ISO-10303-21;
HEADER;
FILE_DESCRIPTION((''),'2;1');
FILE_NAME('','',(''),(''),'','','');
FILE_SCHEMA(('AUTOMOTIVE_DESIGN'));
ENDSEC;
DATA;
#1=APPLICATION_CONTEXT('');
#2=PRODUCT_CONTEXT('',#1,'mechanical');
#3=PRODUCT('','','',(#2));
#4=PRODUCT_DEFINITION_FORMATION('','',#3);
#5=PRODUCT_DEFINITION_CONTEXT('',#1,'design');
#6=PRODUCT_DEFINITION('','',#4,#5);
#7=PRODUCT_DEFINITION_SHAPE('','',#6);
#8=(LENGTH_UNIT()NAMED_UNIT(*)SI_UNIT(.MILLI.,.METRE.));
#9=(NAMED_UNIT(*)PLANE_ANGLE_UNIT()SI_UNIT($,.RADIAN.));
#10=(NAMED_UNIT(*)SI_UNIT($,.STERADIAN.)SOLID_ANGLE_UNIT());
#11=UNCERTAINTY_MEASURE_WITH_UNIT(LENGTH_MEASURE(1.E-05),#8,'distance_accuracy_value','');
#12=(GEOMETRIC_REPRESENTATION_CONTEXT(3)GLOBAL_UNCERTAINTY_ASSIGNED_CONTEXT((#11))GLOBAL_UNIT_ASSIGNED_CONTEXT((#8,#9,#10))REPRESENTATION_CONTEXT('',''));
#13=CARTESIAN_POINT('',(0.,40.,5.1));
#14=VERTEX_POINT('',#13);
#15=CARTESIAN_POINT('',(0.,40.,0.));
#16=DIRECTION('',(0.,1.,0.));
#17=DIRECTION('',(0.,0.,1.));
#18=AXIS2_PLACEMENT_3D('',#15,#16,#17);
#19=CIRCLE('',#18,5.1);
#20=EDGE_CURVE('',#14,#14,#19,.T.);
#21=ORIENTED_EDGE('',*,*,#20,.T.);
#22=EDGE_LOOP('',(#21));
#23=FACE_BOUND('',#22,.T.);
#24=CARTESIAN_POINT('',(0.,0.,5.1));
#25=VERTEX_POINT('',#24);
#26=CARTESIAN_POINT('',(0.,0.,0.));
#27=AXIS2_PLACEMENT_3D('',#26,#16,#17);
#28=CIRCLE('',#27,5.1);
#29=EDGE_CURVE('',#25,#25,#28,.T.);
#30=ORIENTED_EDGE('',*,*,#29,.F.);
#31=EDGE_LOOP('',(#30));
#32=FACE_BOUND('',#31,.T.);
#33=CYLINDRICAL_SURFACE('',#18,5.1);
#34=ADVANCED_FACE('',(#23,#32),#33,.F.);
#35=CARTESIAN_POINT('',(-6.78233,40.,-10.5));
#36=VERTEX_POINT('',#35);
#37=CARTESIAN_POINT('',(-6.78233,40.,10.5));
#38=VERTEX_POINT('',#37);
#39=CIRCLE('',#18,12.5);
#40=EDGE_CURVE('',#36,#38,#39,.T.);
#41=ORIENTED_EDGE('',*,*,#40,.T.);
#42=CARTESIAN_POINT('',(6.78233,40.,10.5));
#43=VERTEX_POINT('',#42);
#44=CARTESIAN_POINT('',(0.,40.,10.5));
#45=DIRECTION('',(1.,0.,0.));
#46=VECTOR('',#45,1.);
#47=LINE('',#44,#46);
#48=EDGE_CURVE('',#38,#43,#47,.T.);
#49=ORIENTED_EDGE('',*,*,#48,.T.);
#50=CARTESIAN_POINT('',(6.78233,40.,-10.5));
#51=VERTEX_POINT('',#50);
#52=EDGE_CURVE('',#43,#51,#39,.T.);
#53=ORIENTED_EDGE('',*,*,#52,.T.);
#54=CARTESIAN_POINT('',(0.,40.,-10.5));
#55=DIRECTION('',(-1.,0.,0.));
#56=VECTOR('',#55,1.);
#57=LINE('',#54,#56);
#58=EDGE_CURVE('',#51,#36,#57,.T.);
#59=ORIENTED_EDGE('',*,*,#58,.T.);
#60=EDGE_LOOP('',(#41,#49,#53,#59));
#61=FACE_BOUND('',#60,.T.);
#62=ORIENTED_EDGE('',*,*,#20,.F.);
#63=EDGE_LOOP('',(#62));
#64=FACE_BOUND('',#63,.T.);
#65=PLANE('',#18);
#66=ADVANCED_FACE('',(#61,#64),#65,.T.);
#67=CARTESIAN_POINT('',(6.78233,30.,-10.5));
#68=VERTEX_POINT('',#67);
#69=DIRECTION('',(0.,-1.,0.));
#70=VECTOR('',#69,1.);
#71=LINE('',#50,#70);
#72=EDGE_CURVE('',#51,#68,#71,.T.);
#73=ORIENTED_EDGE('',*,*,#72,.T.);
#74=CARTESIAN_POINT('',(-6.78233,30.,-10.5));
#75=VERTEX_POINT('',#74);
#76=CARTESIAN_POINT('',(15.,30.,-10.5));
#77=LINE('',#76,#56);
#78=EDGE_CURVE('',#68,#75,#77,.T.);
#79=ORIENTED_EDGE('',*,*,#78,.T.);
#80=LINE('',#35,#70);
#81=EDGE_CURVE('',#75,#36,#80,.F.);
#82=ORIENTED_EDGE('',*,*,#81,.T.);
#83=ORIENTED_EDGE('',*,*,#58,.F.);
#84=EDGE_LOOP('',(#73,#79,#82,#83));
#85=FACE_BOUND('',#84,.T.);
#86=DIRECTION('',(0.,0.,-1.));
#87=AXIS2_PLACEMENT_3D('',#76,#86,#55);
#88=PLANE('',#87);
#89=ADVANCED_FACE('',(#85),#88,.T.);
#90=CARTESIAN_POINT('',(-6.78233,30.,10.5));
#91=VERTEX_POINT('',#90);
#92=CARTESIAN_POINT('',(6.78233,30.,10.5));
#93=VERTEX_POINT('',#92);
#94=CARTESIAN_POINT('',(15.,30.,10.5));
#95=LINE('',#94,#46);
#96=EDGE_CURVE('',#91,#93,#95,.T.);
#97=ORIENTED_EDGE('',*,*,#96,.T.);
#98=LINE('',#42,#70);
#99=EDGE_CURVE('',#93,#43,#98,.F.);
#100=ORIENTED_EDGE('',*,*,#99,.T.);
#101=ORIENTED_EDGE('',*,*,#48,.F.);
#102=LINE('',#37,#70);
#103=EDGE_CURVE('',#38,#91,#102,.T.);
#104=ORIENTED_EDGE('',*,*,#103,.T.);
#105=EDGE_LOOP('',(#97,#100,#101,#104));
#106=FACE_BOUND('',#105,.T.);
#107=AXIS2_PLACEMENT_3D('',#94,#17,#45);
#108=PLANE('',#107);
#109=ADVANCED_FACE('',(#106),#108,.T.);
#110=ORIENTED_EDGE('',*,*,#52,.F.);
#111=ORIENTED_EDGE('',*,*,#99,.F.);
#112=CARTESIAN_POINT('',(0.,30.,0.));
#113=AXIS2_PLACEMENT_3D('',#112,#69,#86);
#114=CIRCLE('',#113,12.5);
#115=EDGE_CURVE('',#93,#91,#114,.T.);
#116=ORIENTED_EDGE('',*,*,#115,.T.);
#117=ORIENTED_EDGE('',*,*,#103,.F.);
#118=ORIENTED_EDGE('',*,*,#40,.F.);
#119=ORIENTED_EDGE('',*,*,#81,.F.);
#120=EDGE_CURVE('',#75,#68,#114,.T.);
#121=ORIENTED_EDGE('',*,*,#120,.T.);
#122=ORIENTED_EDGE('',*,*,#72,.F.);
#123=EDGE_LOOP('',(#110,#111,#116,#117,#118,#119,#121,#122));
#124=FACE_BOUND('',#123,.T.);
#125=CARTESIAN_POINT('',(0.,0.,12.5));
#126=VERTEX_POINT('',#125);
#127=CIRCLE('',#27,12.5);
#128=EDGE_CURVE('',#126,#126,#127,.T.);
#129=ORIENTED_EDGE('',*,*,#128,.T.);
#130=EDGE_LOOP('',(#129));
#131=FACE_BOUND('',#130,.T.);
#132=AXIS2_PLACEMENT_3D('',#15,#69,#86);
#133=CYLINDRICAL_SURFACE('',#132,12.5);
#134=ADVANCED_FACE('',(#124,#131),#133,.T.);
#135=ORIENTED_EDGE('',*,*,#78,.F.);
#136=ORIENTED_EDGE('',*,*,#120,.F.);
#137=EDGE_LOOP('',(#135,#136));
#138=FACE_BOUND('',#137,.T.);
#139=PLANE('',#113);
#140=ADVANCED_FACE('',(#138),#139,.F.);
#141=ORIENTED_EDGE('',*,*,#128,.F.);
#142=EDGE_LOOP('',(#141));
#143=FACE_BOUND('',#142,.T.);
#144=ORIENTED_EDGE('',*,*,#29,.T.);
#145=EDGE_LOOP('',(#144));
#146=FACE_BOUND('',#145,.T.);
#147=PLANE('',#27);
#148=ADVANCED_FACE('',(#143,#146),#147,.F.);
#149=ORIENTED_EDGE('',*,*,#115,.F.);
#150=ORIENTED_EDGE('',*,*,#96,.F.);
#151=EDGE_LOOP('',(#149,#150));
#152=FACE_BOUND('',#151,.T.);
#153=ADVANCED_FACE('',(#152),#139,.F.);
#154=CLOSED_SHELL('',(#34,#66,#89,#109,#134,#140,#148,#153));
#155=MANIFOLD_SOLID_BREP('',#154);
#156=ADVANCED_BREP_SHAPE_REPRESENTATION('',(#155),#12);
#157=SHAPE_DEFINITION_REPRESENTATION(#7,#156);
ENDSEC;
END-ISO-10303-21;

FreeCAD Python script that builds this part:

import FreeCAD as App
import Part
import Sketcher
Q = App.Units.Quantity

doc = App.newDocument("Part")
body = doc.addObject("PartDesign::Body", "Body")

# Sketch on XZ plane
sketch1 = doc.addObject("Sketcher::SketchObject", "Sketch")
body.addObject(sketch1)
sketch1.AttachmentSupport = (doc.XZ_Plane, [""])
sketch1.MapMode = "FlatFace"
sketch1.addGeometry(Part.Circle(App.Vector(0, 0, 0), App.Vector(0, 0, 1), 12), False)
sketch1.addConstraint([
    Sketcher.Constraint("Coincident", 0, 3, -1, 1),
    Sketcher.Constraint("Diameter", 0, Q("25 mm")),
])
pad1 = doc.addObject("PartDesign::Pad", "Pad")
body.addObject(pad1)
pad1.Profile = sketch1
pad1.Length = 40
pad1.Reversed = True

# Sketch on XZ plane
sketch2 = doc.addObject("Sketcher::SketchObject", "Sketch001")
body.addObject(sketch2)
sketch2.AttachmentSupport = (doc.XZ_Plane, [""])
sketch2.MapMode = "FlatFace"
sketch2.AttachmentOffset = App.Placement(App.Vector(0, 0, -40), App.Rotation())
sketch2.addGeometry([
    Part.LineSegment(App.Vector(-18, -14, 0), App.Vector(-18, 14, 0)),  # 0
    Part.LineSegment(App.Vector(-18, 14, 0), App.Vector(18, 14, 0)),  # 1
    Part.LineSegment(App.Vector(18, 14, 0), App.Vector(18, -14, 0)),  # 2
    Part.LineSegment(App.Vector(18, -14, 0), App.Vector(-18, -14, 0)),  # 3
    Part.LineSegment(App.Vector(15, 10, 0), App.Vector(-15, 10, 0)),  # 4
    Part.LineSegment(App.Vector(-15, 10, 0), App.Vector(-15, -10, 0)),  # 5
    Part.LineSegment(App.Vector(-15, -10, 0), App.Vector(15, -10, 0)),  # 6
    Part.LineSegment(App.Vector(15, -10, 0), App.Vector(15, 10, 0)),  # 7
], False)
sketch2.addConstraint([
    Sketcher.Constraint("Coincident", 0, 2, 1, 1),
    Sketcher.Constraint("Coincident", 1, 2, 2, 1),
    Sketcher.Constraint("Coincident", 2, 2, 3, 1),
    Sketcher.Constraint("Coincident", 3, 2, 0, 1),
    Sketcher.Constraint("Coincident", 4, 2, 5, 1),
    Sketcher.Constraint("Coincident", 5, 2, 6, 1),
    Sketcher.Constraint("Coincident", 6, 2, 7, 1),
    Sketcher.Constraint("Coincident", 7, 2, 4, 1),
    Sketcher.Constraint("Vertical", 0),
    Sketcher.Constraint("Horizontal", 1),
    Sketcher.Constraint("Vertical", 2),
    Sketcher.Constraint("Horizontal", 3),
    Sketcher.Constraint("Horizontal", 4),
    Sketcher.Constraint("Vertical", 5),
    Sketcher.Constraint("Horizontal", 6),
    Sketcher.Constraint("Vertical", 7),
    Sketcher.Constraint("Symmetric", 0, 2, 2, 2, -1, 1),
    Sketcher.Constraint("Symmetric", 4, 2, 6, 2, -1, 1),
    Sketcher.Constraint("DistanceX", 1, 1, 1, 2, Q("36 mm")),
    Sketcher.Constraint("DistanceX", 4, 2, 4, 1, Q("30 mm")),
    Sketcher.Constraint("DistanceY", 0, 1, 0, 2, Q("27 mm")),
    Sketcher.Constraint("DistanceY", 5, 2, 5, 1, Q("21 mm")),
])
pocket1 = doc.addObject("PartDesign::Pocket", "Pocket")
body.addObject(pocket1)
pocket1.Profile = sketch2
pocket1.Length = 10
pocket1.Reversed = True

# Sketch on XZ plane
sketch3 = doc.addObject("Sketcher::SketchObject", "Sketch002")
body.addObject(sketch3)
sketch3.AttachmentSupport = (doc.XZ_Plane, [""])
sketch3.MapMode = "FlatFace"
sketch3.AttachmentOffset = App.Placement(App.Vector(0, 0, -40), App.Rotation())
sketch3.addGeometry(Part.Circle(App.Vector(0, 0, 0), App.Vector(0, 0, 1), 5), False)
sketch3.addConstraint([
    Sketcher.Constraint("Coincident", 0, 3, -1, 1),
    Sketcher.Constraint("Diameter", 0, Q("10.2 mm")),
])
doc.recompute()
hole = doc.addObject("PartDesign::Hole", "Hole")
body.addObject(hole)
hole.Profile = sketch3
hole.ThreadType = "None"
hole.Diameter = 10.2
hole.DepthType = "ThroughAll"
hole.Reversed = True

doc.recompute()
